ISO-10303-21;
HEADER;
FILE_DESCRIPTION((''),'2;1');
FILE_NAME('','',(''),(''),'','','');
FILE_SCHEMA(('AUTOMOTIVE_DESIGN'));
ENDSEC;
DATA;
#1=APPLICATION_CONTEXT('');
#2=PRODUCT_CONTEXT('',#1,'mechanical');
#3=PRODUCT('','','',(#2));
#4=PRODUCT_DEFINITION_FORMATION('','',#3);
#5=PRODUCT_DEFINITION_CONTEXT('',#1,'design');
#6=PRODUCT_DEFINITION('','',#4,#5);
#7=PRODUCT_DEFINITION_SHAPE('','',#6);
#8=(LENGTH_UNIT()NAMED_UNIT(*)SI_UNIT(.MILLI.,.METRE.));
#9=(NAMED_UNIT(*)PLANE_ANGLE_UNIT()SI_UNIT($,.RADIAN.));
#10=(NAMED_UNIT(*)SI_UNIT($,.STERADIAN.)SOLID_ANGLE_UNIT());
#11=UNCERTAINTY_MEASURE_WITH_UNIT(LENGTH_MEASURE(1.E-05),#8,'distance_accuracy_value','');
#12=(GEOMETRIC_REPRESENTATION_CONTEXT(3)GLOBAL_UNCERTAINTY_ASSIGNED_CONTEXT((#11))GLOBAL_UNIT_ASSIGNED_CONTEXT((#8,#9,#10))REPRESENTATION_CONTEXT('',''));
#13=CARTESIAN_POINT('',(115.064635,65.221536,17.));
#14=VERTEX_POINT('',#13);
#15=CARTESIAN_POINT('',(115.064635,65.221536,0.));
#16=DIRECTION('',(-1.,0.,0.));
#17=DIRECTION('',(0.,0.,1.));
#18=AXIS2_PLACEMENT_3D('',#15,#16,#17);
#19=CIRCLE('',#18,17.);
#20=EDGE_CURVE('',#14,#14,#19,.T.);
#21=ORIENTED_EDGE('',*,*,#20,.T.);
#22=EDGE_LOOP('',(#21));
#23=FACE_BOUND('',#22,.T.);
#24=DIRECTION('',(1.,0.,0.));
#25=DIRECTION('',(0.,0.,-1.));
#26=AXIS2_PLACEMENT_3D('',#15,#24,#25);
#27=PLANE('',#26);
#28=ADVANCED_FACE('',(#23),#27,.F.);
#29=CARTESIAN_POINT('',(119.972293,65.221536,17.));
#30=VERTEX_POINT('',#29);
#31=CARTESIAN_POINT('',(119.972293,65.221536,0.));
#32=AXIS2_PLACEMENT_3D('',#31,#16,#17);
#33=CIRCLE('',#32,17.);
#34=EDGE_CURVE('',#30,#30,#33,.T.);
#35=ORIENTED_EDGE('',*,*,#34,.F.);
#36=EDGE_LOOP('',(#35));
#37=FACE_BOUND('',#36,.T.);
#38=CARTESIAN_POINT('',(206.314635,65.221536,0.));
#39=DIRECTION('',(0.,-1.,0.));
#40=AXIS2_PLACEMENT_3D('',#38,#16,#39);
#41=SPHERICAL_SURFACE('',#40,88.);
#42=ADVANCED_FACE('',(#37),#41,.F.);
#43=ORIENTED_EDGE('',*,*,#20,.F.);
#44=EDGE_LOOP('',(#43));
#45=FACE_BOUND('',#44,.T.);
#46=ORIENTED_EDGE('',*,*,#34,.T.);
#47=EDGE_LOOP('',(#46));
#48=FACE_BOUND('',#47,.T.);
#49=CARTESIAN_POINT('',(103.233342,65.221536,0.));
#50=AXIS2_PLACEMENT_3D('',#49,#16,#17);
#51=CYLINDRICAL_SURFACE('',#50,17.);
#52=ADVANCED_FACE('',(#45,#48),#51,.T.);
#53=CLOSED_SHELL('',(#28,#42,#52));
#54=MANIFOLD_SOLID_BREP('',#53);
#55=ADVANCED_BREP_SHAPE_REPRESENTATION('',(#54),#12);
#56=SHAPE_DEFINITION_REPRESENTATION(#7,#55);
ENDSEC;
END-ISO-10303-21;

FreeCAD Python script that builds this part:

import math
import FreeCAD as App
import Part
import Sketcher
from FreeCAD import Vector
Q = App.Units.Quantity

doc = App.newDocument("Part")
body = doc.addObject("PartDesign::Body", "Body")

# Sketch on XY plane
sketch1 = body.newObject("Sketcher::SketchObject", "Sketch")
sketch1.AttachmentSupport = (doc.getObject("XY_Plane"), [""])
sketch1.MapMode = "FlatFace"
sketch1.addGeometry(Part.LineSegment(Vector(120, 82.2, 0), Vector(115.1, 82.2, 0)), False)
sketch1.addGeometry(Part.LineSegment(Vector(115.1, 82.2, 0), Vector(115.1, 65.2, 0)), False)
sketch1.addGeometry(Part.LineSegment(Vector(115.1, 65.2, 0), Vector(118.3, 65.2, 0)), False)
sketch1.addGeometry(Part.ArcOfCircle(Part.Circle(Vector(206.3, 65.2, 0), Vector(0, 0, 1), 88), math.radians(168.86), math.radians(180)), False)
sketch1.addGeometry(Part.LineSegment(Vector(115.1, 65.2, 0), Vector(206.3, 65.2, 0)), True)  # axis
sketch1.addConstraint(Sketcher.Constraint("Coincident", 0, 2, 1, 1))
sketch1.addConstraint(Sketcher.Constraint("Coincident", 1, 2, 2, 1))
sketch1.addConstraint(Sketcher.Constraint("Coincident", 2, 2, 3, 2))
sketch1.addConstraint(Sketcher.Constraint("Coincident", 3, 1, 0, 1))
sketch1.addConstraint(Sketcher.Constraint("Horizontal", 0))
sketch1.addConstraint(Sketcher.Constraint("Vertical", 1))
sketch1.addConstraint(Sketcher.Constraint("Horizontal", 2))
sketch1.addConstraint(Sketcher.Constraint("Horizontal", 4))
sketch1.addConstraint(Sketcher.Constraint("Coincident", 4, 1, 1, 2))
sketch1.addConstraint(Sketcher.Constraint("Coincident", 4, 2, 3, 3))
sketch1.addConstraint(Sketcher.Constraint("Radius", 3, Q("88 mm")))
sketch1.addConstraint(Sketcher.Constraint("DistanceY", 1, 2, 1, 1, Q("17 mm")))
sketch1.addConstraint(Sketcher.Constraint("DistanceX", 2, 1, 2, 2, Q("3.25 mm")))
sketch1.addConstraint(Sketcher.Constraint("DistanceX", -1, 1, 3, 3, Q("206.314635 mm")))
sketch1.addConstraint(Sketcher.Constraint("DistanceY", -1, 1, 3, 3, Q("65.221536 mm")))
revolution = body.newObject("PartDesign::Revolution", "Revolution")
revolution.Profile = sketch1
revolution.ReferenceAxis = (sketch1, ["Axis0"])
revolution.Angle = 360

doc.recompute()
